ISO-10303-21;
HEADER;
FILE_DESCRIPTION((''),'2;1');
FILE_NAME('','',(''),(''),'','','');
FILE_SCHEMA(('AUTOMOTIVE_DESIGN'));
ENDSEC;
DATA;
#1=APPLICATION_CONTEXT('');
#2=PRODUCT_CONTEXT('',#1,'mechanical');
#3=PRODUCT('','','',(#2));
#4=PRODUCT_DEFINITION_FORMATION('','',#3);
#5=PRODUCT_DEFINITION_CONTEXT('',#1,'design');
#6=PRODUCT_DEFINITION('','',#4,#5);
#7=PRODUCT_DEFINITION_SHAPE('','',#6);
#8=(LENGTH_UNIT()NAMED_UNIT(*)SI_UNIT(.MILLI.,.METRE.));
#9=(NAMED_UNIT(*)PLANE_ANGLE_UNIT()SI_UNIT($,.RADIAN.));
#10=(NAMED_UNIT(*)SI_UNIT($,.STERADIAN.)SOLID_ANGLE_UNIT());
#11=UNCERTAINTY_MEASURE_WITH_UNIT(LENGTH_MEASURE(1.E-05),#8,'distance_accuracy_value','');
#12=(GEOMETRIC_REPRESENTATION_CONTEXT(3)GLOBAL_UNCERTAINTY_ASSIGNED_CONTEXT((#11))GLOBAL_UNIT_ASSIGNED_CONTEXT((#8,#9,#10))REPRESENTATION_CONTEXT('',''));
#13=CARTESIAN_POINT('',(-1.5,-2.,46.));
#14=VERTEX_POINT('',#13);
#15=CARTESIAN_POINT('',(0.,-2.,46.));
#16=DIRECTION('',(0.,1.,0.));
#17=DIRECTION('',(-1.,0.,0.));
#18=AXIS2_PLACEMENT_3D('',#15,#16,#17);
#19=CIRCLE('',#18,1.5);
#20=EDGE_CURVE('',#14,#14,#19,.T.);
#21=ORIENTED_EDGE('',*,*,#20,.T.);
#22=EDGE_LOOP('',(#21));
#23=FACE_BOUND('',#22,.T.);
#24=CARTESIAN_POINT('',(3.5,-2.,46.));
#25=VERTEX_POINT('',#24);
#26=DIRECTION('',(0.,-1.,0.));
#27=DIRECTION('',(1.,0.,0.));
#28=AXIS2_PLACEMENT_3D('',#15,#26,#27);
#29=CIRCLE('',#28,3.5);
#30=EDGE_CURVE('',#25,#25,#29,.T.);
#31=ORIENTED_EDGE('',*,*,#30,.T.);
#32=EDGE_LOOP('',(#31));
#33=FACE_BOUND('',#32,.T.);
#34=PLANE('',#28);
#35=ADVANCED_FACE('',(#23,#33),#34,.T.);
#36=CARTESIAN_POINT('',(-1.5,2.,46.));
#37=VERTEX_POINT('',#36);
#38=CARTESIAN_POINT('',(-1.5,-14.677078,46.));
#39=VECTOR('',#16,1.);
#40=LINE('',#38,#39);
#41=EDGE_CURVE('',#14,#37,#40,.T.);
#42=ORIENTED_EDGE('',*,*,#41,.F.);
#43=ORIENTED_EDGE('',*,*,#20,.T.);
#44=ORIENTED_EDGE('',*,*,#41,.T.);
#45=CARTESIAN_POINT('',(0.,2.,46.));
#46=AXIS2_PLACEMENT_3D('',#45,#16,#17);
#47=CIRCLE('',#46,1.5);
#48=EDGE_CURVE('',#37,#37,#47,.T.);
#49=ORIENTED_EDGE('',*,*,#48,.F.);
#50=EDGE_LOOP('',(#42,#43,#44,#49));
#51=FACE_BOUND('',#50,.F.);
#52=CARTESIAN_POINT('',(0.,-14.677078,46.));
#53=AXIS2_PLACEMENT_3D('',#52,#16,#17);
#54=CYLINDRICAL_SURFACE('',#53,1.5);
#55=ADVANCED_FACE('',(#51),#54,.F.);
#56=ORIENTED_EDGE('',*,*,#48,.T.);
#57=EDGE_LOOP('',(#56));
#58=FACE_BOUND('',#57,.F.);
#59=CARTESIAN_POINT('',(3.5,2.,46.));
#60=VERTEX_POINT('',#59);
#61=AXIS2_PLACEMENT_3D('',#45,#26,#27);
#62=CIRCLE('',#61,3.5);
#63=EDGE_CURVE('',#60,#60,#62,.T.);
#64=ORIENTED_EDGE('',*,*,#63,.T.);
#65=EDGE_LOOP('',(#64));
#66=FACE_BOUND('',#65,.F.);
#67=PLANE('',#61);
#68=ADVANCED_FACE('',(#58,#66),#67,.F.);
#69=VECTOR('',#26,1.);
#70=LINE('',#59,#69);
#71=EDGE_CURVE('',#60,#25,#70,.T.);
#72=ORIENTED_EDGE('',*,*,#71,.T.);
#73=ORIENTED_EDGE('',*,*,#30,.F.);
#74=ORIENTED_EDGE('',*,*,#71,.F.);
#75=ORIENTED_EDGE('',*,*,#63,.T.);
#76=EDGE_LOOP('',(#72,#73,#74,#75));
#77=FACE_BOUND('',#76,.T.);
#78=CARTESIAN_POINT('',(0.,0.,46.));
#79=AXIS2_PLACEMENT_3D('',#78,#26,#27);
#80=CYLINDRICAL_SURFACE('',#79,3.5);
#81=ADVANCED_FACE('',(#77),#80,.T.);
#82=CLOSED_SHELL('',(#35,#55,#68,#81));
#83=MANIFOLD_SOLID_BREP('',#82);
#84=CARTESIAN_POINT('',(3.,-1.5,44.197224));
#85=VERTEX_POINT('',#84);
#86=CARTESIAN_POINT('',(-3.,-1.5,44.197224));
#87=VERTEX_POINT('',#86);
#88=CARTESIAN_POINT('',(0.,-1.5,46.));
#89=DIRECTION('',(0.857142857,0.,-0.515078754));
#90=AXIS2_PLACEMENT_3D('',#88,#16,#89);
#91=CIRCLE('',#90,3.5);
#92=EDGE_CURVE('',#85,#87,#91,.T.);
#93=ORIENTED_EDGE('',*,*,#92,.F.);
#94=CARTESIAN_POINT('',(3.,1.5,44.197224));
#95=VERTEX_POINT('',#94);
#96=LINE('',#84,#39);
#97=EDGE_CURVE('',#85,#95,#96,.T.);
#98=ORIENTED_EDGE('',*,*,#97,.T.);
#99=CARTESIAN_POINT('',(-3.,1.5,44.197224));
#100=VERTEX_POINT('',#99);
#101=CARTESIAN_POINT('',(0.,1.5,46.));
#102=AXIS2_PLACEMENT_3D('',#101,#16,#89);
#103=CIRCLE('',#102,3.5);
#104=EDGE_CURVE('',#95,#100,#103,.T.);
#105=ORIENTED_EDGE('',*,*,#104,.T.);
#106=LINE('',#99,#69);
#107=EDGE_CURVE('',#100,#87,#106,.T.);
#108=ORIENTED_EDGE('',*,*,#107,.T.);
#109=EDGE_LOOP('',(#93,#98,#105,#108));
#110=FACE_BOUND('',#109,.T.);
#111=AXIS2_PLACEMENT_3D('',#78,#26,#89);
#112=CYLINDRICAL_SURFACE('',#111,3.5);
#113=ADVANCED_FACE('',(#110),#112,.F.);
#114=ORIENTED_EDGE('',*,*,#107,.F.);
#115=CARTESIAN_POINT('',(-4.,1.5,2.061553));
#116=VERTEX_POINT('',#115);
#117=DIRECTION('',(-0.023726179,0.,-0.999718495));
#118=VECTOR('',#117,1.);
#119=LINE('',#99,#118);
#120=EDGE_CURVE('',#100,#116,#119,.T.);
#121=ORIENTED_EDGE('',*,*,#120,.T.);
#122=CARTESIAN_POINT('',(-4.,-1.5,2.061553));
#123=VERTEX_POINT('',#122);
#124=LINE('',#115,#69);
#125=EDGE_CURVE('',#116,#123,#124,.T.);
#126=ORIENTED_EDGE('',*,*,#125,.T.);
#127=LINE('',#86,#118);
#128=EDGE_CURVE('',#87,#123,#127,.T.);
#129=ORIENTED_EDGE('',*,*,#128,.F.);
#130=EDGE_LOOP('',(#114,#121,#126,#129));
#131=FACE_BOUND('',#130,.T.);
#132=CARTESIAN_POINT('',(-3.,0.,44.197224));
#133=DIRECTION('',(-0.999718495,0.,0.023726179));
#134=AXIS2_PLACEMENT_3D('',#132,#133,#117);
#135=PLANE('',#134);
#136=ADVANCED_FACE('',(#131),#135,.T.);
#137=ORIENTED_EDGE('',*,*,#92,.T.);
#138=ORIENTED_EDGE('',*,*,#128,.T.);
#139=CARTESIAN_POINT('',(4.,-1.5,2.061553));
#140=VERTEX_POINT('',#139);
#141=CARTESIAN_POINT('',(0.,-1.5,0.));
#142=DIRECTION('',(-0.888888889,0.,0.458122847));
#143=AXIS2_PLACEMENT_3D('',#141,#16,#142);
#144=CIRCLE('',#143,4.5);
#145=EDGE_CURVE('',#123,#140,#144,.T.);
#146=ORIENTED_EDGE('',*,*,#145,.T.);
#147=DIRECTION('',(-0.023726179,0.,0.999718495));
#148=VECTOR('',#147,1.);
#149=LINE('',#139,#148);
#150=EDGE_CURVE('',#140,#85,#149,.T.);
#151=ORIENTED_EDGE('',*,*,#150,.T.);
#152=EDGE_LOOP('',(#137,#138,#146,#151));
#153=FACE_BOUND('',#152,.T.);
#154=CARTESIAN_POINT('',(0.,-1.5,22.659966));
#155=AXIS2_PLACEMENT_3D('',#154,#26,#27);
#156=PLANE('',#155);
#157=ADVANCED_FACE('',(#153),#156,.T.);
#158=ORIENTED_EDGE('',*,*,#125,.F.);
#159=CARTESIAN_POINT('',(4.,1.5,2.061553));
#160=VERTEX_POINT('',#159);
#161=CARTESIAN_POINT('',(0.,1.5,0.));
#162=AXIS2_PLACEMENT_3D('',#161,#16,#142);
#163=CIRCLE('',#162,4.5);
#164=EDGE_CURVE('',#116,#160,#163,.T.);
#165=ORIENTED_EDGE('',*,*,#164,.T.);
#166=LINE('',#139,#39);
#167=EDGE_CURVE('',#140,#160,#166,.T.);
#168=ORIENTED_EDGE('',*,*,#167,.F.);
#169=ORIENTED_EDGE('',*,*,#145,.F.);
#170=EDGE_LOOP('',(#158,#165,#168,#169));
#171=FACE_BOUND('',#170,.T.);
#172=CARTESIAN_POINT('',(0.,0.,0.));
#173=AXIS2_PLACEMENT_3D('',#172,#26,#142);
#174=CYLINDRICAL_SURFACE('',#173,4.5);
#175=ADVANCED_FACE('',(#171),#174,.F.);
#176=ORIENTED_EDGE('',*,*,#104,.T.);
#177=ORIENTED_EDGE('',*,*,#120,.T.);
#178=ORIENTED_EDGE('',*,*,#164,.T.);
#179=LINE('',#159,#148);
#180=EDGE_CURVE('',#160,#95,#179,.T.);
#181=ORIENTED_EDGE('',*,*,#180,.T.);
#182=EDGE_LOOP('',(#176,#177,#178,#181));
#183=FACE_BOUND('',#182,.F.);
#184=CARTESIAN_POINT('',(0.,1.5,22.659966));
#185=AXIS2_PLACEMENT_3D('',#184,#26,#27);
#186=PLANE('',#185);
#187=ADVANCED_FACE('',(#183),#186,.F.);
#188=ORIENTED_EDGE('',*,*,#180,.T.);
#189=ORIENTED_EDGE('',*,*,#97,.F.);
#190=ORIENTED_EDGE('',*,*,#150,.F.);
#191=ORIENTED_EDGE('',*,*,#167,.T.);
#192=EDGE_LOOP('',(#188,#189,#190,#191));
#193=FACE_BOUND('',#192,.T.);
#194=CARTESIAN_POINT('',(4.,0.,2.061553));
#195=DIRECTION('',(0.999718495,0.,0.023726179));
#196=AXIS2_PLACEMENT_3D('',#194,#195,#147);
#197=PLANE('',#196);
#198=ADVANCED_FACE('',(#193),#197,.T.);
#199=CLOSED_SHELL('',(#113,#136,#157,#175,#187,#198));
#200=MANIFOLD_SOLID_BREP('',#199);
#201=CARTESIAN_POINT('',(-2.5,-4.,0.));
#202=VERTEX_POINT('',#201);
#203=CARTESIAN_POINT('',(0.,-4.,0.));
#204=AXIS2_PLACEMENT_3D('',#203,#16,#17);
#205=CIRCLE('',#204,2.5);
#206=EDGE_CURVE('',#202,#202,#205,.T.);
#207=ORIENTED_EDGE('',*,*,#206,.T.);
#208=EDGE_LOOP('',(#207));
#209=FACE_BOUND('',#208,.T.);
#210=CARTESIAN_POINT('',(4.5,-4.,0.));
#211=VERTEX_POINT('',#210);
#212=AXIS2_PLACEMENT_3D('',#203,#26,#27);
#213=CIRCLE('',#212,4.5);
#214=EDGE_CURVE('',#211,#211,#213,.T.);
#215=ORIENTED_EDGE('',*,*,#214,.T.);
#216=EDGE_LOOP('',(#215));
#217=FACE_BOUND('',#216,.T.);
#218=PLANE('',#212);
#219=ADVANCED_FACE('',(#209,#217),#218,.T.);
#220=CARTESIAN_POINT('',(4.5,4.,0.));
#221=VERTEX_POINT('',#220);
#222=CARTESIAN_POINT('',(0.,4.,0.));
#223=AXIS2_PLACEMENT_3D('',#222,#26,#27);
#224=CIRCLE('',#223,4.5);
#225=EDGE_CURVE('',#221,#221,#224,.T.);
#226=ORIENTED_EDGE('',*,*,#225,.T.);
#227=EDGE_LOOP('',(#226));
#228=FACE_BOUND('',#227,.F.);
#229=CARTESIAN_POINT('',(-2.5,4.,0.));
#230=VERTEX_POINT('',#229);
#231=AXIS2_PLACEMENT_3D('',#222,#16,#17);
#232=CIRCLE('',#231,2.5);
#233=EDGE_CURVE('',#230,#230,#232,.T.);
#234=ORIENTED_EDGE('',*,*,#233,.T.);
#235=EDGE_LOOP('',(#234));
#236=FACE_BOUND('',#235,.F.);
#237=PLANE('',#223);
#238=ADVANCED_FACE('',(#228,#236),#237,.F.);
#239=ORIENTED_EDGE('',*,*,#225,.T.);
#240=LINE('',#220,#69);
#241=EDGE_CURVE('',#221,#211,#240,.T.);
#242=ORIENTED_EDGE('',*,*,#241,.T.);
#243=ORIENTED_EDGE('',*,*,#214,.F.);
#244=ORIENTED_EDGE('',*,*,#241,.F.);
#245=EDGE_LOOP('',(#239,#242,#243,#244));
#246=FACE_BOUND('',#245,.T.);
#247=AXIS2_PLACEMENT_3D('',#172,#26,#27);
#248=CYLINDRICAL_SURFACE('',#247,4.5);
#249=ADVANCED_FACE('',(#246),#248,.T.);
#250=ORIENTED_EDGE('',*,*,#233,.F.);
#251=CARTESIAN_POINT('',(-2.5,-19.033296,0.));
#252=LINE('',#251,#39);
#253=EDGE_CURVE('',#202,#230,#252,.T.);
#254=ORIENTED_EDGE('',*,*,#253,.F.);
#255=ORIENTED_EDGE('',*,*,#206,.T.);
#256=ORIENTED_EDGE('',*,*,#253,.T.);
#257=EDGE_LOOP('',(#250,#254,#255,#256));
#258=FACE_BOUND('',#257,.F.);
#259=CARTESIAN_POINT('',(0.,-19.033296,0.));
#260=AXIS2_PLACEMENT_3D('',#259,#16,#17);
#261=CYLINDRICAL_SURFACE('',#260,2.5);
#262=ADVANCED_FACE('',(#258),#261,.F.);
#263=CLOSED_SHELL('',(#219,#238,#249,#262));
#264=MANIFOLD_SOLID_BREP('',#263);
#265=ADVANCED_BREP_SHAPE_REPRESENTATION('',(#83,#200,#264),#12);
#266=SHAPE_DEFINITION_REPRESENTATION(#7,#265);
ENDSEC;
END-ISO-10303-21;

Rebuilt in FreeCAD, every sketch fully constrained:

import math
import FreeCAD as App
import Part
import Sketcher
Q = App.Units.Quantity

doc = App.newDocument("Part")
body = doc.addObject("PartDesign::Body", "Body")

# Sketch on XZ plane
sketch1 = doc.addObject("Sketcher::SketchObject", "Sketch")
body.addObject(sketch1)
sketch1.AttachmentSupport = (doc.XZ_Plane, [""])
sketch1.MapMode = "FlatFace"
sketch1.addGeometry(Part.Circle(App.Vector(0, 0, 0), App.Vector(0, 0, 1), 4.5), False)
sketch1.addConstraint(Sketcher.Constraint("Coincident", 0, 3, -1, 1))
sketch1.addConstraint(Sketcher.Constraint("Diameter", 0, Q("9 mm")))
pad1 = doc.addObject("PartDesign::Pad", "Pad")
body.addObject(pad1)
pad1.Profile = sketch1
pad1.Length = 8
pad1.Midplane = True

# Sketch on XZ plane
sketch2 = doc.addObject("Sketcher::SketchObject", "Sketch001")
body.addObject(sketch2)
sketch2.AttachmentSupport = (doc.XZ_Plane, [""])
sketch2.MapMode = "FlatFace"
sketch2.AttachmentOffset = App.Placement(App.Vector(0, 0, 4), App.Rotation())
sketch2.addGeometry(Part.Circle(App.Vector(0, 0, 0), App.Vector(0, 0, 1), 2.5), False)
sketch2.addConstraint(Sketcher.Constraint("Coincident", 0, 3, -1, 1))
sketch2.addConstraint(Sketcher.Constraint("Diameter", 0, Q("5 mm")))
doc.recompute()
hole = doc.addObject("PartDesign::Hole", "Hole")
body.addObject(hole)
hole.Profile = sketch2
hole.ThreadType = "None"
hole.Diameter = 5
hole.DepthType = "ThroughAll"
body2 = doc.addObject("PartDesign::Body", "Body001")

# Sketch on XZ plane
sketch3 = doc.addObject("Sketcher::SketchObject", "Sketch002")
body2.addObject(sketch3)
sketch3.AttachmentSupport = (doc.getObject("XZ_Plane001"), [""])
sketch3.MapMode = "FlatFace"
sketch3.addGeometry(Part.Circle(App.Vector(0, 46, 0), App.Vector(0, 0, 1), 3.5), False)
sketch3.addConstraint(Sketcher.Constraint("PointOnObject", 0, 3, -2))
sketch3.addConstraint(Sketcher.Constraint("Diameter", 0, Q("7 mm")))
sketch3.addConstraint(Sketcher.Constraint("DistanceY", -1, 1, 0, 3, Q("46 mm")))
pad2 = doc.addObject("PartDesign::Pad", "Pad001")
body2.addObject(pad2)
pad2.Profile = sketch3
pad2.Length = 4
pad2.Midplane = True

# Sketch on XZ plane
sketch4 = doc.addObject("Sketcher::SketchObject", "Sketch003")
body2.addObject(sketch4)
sketch4.AttachmentSupport = (doc.getObject("XZ_Plane001"), [""])
sketch4.MapMode = "FlatFace"
sketch4.AttachmentOffset = App.Placement(App.Vector(0, 0, 4), App.Rotation())
sketch4.addGeometry(Part.Circle(App.Vector(0, 46, 0), App.Vector(0, 0, 1), 1.5), False)
sketch4.addConstraint(Sketcher.Constraint("PointOnObject", 0, 3, -2))
sketch4.addConstraint(Sketcher.Constraint("Diameter", 0, Q("3 mm")))
sketch4.addConstraint(Sketcher.Constraint("DistanceY", -1, 1, 0, 3, Q("46 mm")))
doc.recompute()
hole2 = doc.addObject("PartDesign::Hole", "Hole001")
body2.addObject(hole2)
hole2.Profile = sketch4
hole2.ThreadType = "None"
hole2.Diameter = 3
hole2.DepthType = "ThroughAll"
body3 = doc.addObject("PartDesign::Body", "Body002")

# Sketch on XZ plane
sketch5 = doc.addObject("Sketcher::SketchObject", "Sketch004")
body3.addObject(sketch5)
sketch5.AttachmentSupport = (doc.getObject("XZ_Plane002"), [""])
sketch5.MapMode = "FlatFace"
sketch5.addGeometry(Part.ArcOfCircle(Part.Circle(App.Vector(0, 46, 0), App.Vector(0, 0, 1), 3.5), math.radians(-149), math.radians(-31)), False)
sketch5.addGeometry(Part.LineSegment(App.Vector(-3, 44.2, 0), App.Vector(-4, 2.1, 0)), False)
sketch5.addGeometry(Part.ArcOfCircle(Part.Circle(App.Vector(0, 0, 0), App.Vector(0, 0, 1), 4.5), math.radians(27), math.radians(153)), False)
sketch5.addGeometry(Part.LineSegment(App.Vector(4, 2.1, 0), App.Vector(3, 44.2, 0)), False)
sketch5.addConstraint(Sketcher.Constraint("Coincident", 0, 1, 1, 1))
sketch5.addConstraint(Sketcher.Constraint("Coincident", 1, 2, 2, 2))
sketch5.addConstraint(Sketcher.Constraint("Coincident", 2, 1, 3, 1))
sketch5.addConstraint(Sketcher.Constraint("Coincident", 3, 2, 0, 2))
sketch5.addConstraint(Sketcher.Constraint("Coincident", 2, 3, -1, 1))
sketch5.addConstraint(Sketcher.Constraint("Symmetric", 0, 1, 3, 2, -2))
sketch5.addConstraint(Sketcher.Constraint("Horizontal", 1, 2, 2, 1))
sketch5.addConstraint(Sketcher.Constraint("Radius", 0, Q("3.5 mm")))
sketch5.addConstraint(Sketcher.Constraint("Radius", 2, Q("4.5 mm")))
sketch5.addConstraint(Sketcher.Constraint("DistanceY", -1, 1, 0, 3, Q("46 mm")))
sketch5.addConstraint(Sketcher.Constraint("DistanceX", 0, 1, -1, 1, Q("3 mm")))
sketch5.addConstraint(Sketcher.Constraint("DistanceX", 1, 2, -1, 1, Q("4 mm")))
pad3 = doc.addObject("PartDesign::Pad", "Pad002")
body3.addObject(pad3)
pad3.Profile = sketch5
pad3.Length = 3
pad3.Midplane = True

doc.recompute()
